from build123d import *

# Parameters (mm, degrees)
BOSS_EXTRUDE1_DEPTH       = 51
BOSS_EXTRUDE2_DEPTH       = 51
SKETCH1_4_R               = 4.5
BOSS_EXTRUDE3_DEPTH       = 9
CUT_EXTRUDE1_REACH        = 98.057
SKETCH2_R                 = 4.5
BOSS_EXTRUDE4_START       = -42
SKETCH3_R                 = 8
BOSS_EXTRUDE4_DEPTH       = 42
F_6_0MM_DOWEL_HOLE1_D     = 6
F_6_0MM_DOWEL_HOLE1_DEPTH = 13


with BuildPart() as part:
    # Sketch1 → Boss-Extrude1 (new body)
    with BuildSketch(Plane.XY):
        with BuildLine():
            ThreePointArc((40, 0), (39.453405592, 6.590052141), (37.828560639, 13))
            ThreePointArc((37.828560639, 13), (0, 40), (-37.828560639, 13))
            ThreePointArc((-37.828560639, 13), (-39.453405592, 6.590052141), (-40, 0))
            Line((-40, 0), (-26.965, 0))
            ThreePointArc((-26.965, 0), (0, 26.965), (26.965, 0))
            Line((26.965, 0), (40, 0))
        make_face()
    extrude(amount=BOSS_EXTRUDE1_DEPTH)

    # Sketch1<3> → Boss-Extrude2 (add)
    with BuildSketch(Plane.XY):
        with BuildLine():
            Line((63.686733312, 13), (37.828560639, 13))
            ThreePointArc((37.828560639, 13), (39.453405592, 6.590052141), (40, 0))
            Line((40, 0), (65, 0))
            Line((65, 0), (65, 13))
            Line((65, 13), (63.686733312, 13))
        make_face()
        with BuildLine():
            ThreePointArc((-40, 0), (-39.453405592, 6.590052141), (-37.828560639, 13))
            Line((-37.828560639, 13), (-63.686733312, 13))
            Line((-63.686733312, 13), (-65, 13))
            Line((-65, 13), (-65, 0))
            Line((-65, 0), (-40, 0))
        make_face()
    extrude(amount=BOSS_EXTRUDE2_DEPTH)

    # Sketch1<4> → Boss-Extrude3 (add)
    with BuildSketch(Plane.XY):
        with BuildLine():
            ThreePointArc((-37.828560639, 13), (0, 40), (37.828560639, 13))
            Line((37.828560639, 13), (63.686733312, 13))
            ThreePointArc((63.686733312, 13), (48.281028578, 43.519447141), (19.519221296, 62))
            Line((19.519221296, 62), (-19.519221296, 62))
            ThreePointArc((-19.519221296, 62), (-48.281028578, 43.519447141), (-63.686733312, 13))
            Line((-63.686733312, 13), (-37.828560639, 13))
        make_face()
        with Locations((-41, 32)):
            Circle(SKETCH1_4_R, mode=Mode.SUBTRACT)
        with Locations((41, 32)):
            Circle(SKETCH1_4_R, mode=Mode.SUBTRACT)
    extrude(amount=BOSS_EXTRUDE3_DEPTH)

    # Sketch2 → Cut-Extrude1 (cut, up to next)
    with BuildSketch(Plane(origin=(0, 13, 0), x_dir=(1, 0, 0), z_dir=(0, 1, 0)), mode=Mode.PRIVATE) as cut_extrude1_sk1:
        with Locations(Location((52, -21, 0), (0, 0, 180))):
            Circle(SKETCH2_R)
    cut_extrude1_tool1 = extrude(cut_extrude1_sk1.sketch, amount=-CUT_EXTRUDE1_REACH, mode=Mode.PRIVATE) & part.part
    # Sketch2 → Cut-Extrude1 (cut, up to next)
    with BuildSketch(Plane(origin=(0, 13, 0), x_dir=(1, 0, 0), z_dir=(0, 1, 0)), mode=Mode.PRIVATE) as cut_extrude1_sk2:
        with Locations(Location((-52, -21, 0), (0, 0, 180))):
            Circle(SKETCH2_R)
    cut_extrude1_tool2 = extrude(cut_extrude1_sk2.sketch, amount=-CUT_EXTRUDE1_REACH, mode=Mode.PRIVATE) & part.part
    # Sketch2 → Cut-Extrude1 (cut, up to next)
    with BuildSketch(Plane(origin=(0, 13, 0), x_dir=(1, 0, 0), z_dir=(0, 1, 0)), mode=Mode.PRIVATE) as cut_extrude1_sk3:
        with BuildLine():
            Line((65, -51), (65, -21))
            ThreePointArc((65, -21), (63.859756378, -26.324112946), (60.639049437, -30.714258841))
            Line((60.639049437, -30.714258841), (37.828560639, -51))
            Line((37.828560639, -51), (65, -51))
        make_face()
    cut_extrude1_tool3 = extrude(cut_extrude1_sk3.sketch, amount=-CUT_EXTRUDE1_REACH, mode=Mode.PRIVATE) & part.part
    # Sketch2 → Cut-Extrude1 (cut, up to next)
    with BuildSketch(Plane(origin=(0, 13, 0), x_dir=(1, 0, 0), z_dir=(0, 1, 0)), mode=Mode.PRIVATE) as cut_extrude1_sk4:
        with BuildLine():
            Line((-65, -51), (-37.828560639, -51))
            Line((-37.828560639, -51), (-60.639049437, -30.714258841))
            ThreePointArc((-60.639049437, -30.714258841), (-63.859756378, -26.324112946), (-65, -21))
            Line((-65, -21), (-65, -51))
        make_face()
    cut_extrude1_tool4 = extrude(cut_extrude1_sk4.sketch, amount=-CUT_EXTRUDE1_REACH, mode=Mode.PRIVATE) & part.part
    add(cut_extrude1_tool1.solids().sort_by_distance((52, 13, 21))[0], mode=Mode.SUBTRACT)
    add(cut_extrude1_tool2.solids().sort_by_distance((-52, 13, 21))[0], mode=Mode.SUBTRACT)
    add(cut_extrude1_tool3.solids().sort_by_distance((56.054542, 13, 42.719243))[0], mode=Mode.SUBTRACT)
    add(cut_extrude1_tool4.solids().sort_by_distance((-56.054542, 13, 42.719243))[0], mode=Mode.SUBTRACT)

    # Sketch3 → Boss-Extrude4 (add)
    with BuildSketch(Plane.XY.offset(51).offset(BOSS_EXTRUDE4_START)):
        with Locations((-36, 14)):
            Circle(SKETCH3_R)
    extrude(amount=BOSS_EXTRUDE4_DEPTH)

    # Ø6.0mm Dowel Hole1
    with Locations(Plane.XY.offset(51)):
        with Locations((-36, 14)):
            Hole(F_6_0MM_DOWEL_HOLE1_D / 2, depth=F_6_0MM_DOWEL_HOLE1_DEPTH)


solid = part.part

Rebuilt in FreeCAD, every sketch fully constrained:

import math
import FreeCAD as App
import Part
import Sketcher
from FreeCAD import Vector

doc = App.newDocument("Part")
params = doc.addObject("Spreadsheet::Sheet", "Params")
for row, (alias, value) in enumerate([
    ("sketch1_radius", "40 mm"),
    ("pad1_length", "51 mm"),
    ("sketch2_radius", "40 mm"),
    ("sketch2_width", "25 mm"),
    ("sketch2_height", "13 mm"),
    ("pad2_length", "51 mm"),
    ("sketch3_diameter", "9 mm"),
    ("sketch3_radius", "40 mm"),
    ("sketch3_radius2", "65 mm"),
    ("pad3_length", "9 mm"),
    ("sketch4_diameter", "9 mm"),
    ("sketch5_diameter", "9 mm"),
    ("sketch6_radius", "13 mm"),
    ("sketch6_height", "30 mm"),
    ("sketch7_radius", "13 mm"),
    ("sketch7_height", "30 mm"),
    ("sketch8_diameter", "16 mm"),
    ("pad4_length", "42 mm"),
    ("sketch9_diameter", "6 mm"),
    ("hole_diameter", "6 mm"),
    ("hole_depth", "13 mm"),
], start=1):
    params.set(f"A{row}", alias)
    params.set(f"B{row}", "=" + value)
    params.setAlias(f"B{row}", alias)

body = doc.addObject("PartDesign::Body", "Body")

# Sketch on XY plane
sketch1 = body.newObject("Sketcher::SketchObject", "Sketch")
sketch1.AttachmentSupport = (doc.getObject("XY_Plane"), [""])
sketch1.MapMode = "FlatFace"
sketch1.addGeometry([
    Part.ArcOfCircle(Part.Circle(Vector(0, 0, 0), Vector(0, 0, 1), 40), math.radians(0), math.radians(18.97)),  # 0
    Part.ArcOfCircle(Part.Circle(Vector(0, 0, 0), Vector(0, 0, 1), 40), math.radians(19), math.radians(161)),  # 1
    Part.ArcOfCircle(Part.Circle(Vector(0, 0, 0), Vector(0, 0, 1), 40), math.radians(161.03), math.radians(180)),  # 2
    Part.LineSegment(Vector(-40, 0, 0), Vector(-27, 0, 0)),  # 3
    Part.ArcOfCircle(Part.Circle(Vector(0, 0, 0), Vector(0, 0, 1), 27), math.radians(0), math.radians(180)),  # 4
    Part.LineSegment(Vector(27, 0, 0), Vector(40, 0, 0)),  # 5
], False)
sketch1.addConstraint([
    Sketcher.Constraint("Tangent", 0, 2, 1, 1),
    Sketcher.Constraint("Tangent", 1, 2, 2, 1),
    Sketcher.Constraint("Coincident", 2, 2, 3, 1),
    Sketcher.Constraint("Coincident", 3, 2, 4, 2),
    Sketcher.Constraint("Coincident", 4, 1, 5, 1),
    Sketcher.Constraint("Coincident", 5, 2, 0, 1),
    Sketcher.Constraint("Horizontal", 3),
    Sketcher.Constraint("Horizontal", 5),
    Sketcher.Constraint("Coincident", 0, 3, -1, 1),
    Sketcher.Constraint("Coincident", 2, 3, -1, 1),
    Sketcher.Constraint("Coincident", 4, 3, -1, 1),
    Sketcher.Constraint("PointOnObject", 2, 2, -1),
    Sketcher.Constraint("PointOnObject", 4, 1, -1),
    Sketcher.Constraint("Horizontal", 0, 2, 1, 2),
    Sketcher.Constraint("Radius", 0, 40.0),
    Sketcher.Constraint("DistanceY", -1, 1, 0, 2, 13.0),
    Sketcher.Constraint("Radius", 4, 26.965),
])
sketch1.setExpression("Constraints[14]", "Params.sketch1_radius")
pad1 = body.newObject("PartDesign::Pad", "Pad")
pad1.Profile = sketch1
pad1.setExpression("Length", "Params.pad1_length")

# Sketch on XY plane
sketch2 = body.newObject("Sketcher::SketchObject", "Sketch001")
sketch2.AttachmentSupport = (doc.getObject("XY_Plane"), [""])
sketch2.MapMode = "FlatFace"
sketch2.addGeometry([
    Part.ArcOfCircle(Part.Circle(Vector(0, 0, 0), Vector(0, 0, 1), 40), math.radians(0), math.radians(18.97)),  # 0
    Part.LineSegment(Vector(40, 0, 0), Vector(65, 0, 0)),  # 1
    Part.LineSegment(Vector(65, 0, 0), Vector(65, 13, 0)),  # 2
    Part.LineSegment(Vector(65, 13, 0), Vector(38, 13, 0)),  # 3
    Part.ArcOfCircle(Part.Circle(Vector(0, 0, 0), Vector(0, 0, 1), 40), math.radians(161.03), math.radians(180)),  # 4
    Part.LineSegment(Vector(-38, 13, 0), Vector(-65, 13, 0)),  # 5
    Part.LineSegment(Vector(-65, 13, 0), Vector(-65, 0, 0)),  # 6
    Part.LineSegment(Vector(-65, 0, 0), Vector(-40, 0, 0)),  # 7
], False)
sketch2.addConstraint([
    Sketcher.Constraint("Coincident", 0, 1, 1, 1),
    Sketcher.Constraint("Coincident", 1, 2, 2, 1),
    Sketcher.Constraint("Coincident", 2, 2, 3, 1),
    Sketcher.Constraint("Coincident", 3, 2, 0, 2),
    Sketcher.Constraint("Coincident", 4, 1, 5, 1),
    Sketcher.Constraint("Coincident", 5, 2, 6, 1),
    Sketcher.Constraint("Coincident", 6, 2, 7, 1),
    Sketcher.Constraint("Coincident", 7, 2, 4, 2),
    Sketcher.Constraint("Horizontal", 1),
    Sketcher.Constraint("Vertical", 2),
    Sketcher.Constraint("Horizontal", 3),
    Sketcher.Constraint("Horizontal", 5),
    Sketcher.Constraint("Vertical", 6),
    Sketcher.Constraint("Horizontal", 7),
    Sketcher.Constraint("Coincident", 0, 3, -1, 1),
    Sketcher.Constraint("Coincident", 4, 3, -1, 1),
    Sketcher.Constraint("Equal", 0, 4),
    Sketcher.Constraint("Symmetric", 1, 2, 6, 2, -1, 1),
    Sketcher.Constraint("PointOnObject", 0, 1, -1),
    Sketcher.Constraint("Horizontal", 3, 2, 4, 1),
    Sketcher.Constraint("Radius", 0, 40.0),
    Sketcher.Constraint("DistanceX", 1, 1, 1, 2, 25.0),
    Sketcher.Constraint("DistanceY", 2, 1, 2, 2, 13.0),
])
sketch2.setExpression("Constraints[20]", "Params.sketch2_radius")
sketch2.setExpression("Constraints[21]", "Params.sketch2_width")
sketch2.setExpression("Constraints[22]", "Params.sketch2_height")
pad2 = body.newObject("PartDesign::Pad", "Pad001")
pad2.Profile = sketch2
pad2.setExpression("Length", "Params.pad2_length")

# Sketch on XY plane
sketch3 = body.newObject("Sketcher::SketchObject", "Sketch002")
sketch3.AttachmentSupport = (doc.getObject("XY_Plane"), [""])
sketch3.MapMode = "FlatFace"
sketch3.addGeometry([
    Part.ArcOfCircle(Part.Circle(Vector(0, 0, 0), Vector(0, 0, 1), 40), math.radians(19), math.radians(161)),  # 0
    Part.LineSegment(Vector(37.8, 13, 0), Vector(63.7, 13, 0)),  # 1
    Part.ArcOfCircle(Part.Circle(Vector(0, 0, 0), Vector(0, 0, 1), 65), math.radians(12), math.radians(73)),  # 2
    Part.LineSegment(Vector(19.5, 62, 0), Vector(-19.5, 62, 0)),  # 3
    Part.ArcOfCircle(Part.Circle(Vector(0, 0, 0), Vector(0, 0, 1), 65), math.radians(107), math.radians(168)),  # 4
    Part.LineSegment(Vector(-63.7, 13, 0), Vector(-37.8, 13, 0)),  # 5
    Part.Circle(Vector(-41, 32, 0), Vector(0, 0, 1), 4.5),  # 6
    Part.Circle(Vector(41, 32, 0), Vector(0, 0, 1), 4.5),  # 7
], False)
sketch3.addConstraint([
    Sketcher.Constraint("Coincident", 0, 1, 1, 1),
    Sketcher.Constraint("Coincident", 1, 2, 2, 1),
    Sketcher.Constraint("Coincident", 2, 2, 3, 1),
    Sketcher.Constraint("Coincident", 3, 2, 4, 1),
    Sketcher.Constraint("Coincident", 4, 2, 5, 1),
    Sketcher.Constraint("Coincident", 5, 2, 0, 2),
    Sketcher.Constraint("Horizontal", 1),
    Sketcher.Constraint("Horizontal", 3),
    Sketcher.Constraint("Horizontal", 5),
    Sketcher.Constraint("Coincident", 0, 3, -1, 1),
    Sketcher.Constraint("Coincident", 2, 3, -1, 1),
    Sketcher.Constraint("Coincident", 4, 3, -1, 1),
    Sketcher.Constraint("Equal", 2, 4),
    Sketcher.Constraint("Equal", 6, 7),
    Sketcher.Constraint("Symmetric", 6, 3, 7, 3, -2),
    Sketcher.Constraint("Horizontal", 1, 2, 4, 2),
    Sketcher.Constraint("Diameter", 6, 9.0),
    Sketcher.Constraint("Radius", 0, 40.0),
    Sketcher.Constraint("Radius", 2, 65.0),
    Sketcher.Constraint("DistanceX", 6, 3, -1, 1, 41.0),
    Sketcher.Constraint("DistanceY", -1, 1, 6, 3, 32.0),
    Sketcher.Constraint("DistanceY", -1, 1, 0, 1, 13.0),
    Sketcher.Constraint("DistanceY", -1, 1, 2, 2, 62.0),
])
sketch3.setExpression("Constraints[16]", "Params.sketch3_diameter")
sketch3.setExpression("Constraints[17]", "Params.sketch3_radius")
sketch3.setExpression("Constraints[18]", "Params.sketch3_radius2")
pad3 = body.newObject("PartDesign::Pad", "Pad002")
pad3.Profile = sketch3
pad3.setExpression("Length", "Params.pad3_length")

# Sketch on XZ plane
sketch4 = body.newObject("Sketcher::SketchObject", "Sketch003")
sketch4.AttachmentSupport = (doc.getObject("XZ_Plane"), [""])
sketch4.MapMode = "FlatFace"
sketch4.AttachmentOffset = App.Placement(Vector(0, 0, -13), App.Rotation())
sketch4.addGeometry(Part.Circle(Vector(52, 21, 0), Vector(0, 0, 1), 4.5), False)
sketch4.addConstraint([
    Sketcher.Constraint("Diameter", 0, 9.0),
    Sketcher.Constraint("DistanceX", -1, 1, 0, 3, 52.0),
    Sketcher.Constraint("DistanceY", -1, 1, 0, 3, 21.0),
])
sketch4.setExpression("Constraints[0]", "Params.sketch4_diameter")
pocket1 = body.newObject("PartDesign::Pocket", "Pocket")
pocket1.Profile = sketch4
pocket1.Type = "UpToFirst"
pocket1.Reversed = True

# Sketch on XZ plane
sketch5 = body.newObject("Sketcher::SketchObject", "Sketch004")
sketch5.AttachmentSupport = (doc.getObject("XZ_Plane"), [""])
sketch5.MapMode = "FlatFace"
sketch5.AttachmentOffset = App.Placement(Vector(0, 0, -13), App.Rotation())
sketch5.addGeometry(Part.Circle(Vector(-52, 21, 0), Vector(0, 0, 1), 4.5), False)
sketch5.addConstraint([
    Sketcher.Constraint("Diameter", 0, 9.0),
    Sketcher.Constraint("DistanceX", 0, 3, -1, 1, 52.0),
    Sketcher.Constraint("DistanceY", -1, 1, 0, 3, 21.0),
])
sketch5.setExpression("Constraints[0]", "Params.sketch5_diameter")
pocket2 = body.newObject("PartDesign::Pocket", "Pocket001")
pocket2.Profile = sketch5
pocket2.Type = "UpToFirst"
pocket2.Reversed = True

# Sketch on XZ plane
sketch6 = body.newObject("Sketcher::SketchObject", "Sketch005")
sketch6.AttachmentSupport = (doc.getObject("XZ_Plane"), [""])
sketch6.MapMode = "FlatFace"
sketch6.AttachmentOffset = App.Placement(Vector(0, 0, -13), App.Rotation())
sketch6.addGeometry([
    Part.LineSegment(Vector(65, 51, 0), Vector(65, 21, 0)),
    Part.ArcOfCircle(Part.Circle(Vector(52, 21, 0), Vector(0, 0, 1), 13), math.radians(0), math.radians(48)),
    Part.LineSegment(Vector(61, 31, 0), Vector(38, 51, 0)),
    Part.LineSegment(Vector(38, 51, 0), Vector(65, 51, 0)),
], False)
sketch6.addConstraint([
    Sketcher.Constraint("Tangent", 0, 2, 1, 1),
    Sketcher.Constraint("Tangent", 1, 2, 2, 1),
    Sketcher.Constraint("Coincident", 2, 2, 3, 1),
    Sketcher.Constraint("Coincident", 3, 2, 0, 1),
    Sketcher.Constraint("Vertical", 0),
    Sketcher.Constraint("Horizontal", 3),
    Sketcher.Constraint("Radius", 1, 13.0),
    Sketcher.Constraint("DistanceY", 0, 2, 0, 1, 30.0),
    Sketcher.Constraint("DistanceX", -1, 1, 1, 3, 52.0),
    Sketcher.Constraint("DistanceY", -1, 1, 1, 3, 21.0),
    Sketcher.Constraint("DistanceX", 3, 1, 3, 2, 27.171439),
])
sketch6.setExpression("Constraints[6]", "Params.sketch6_radius")
sketch6.setExpression("Constraints[7]", "Params.sketch6_height")
pocket3 = body.newObject("PartDesign::Pocket", "Pocket002")
pocket3.Profile = sketch6
pocket3.Type = "UpToFirst"
pocket3.Reversed = True

# Sketch on XZ plane
sketch7 = body.newObject("Sketcher::SketchObject", "Sketch006")
sketch7.AttachmentSupport = (doc.getObject("XZ_Plane"), [""])
sketch7.MapMode = "FlatFace"
sketch7.AttachmentOffset = App.Placement(Vector(0, 0, -13), App.Rotation())
sketch7.addGeometry([
    Part.LineSegment(Vector(-65, 51, 0), Vector(-38, 51, 0)),
    Part.LineSegment(Vector(-38, 51, 0), Vector(-61, 31, 0)),
    Part.ArcOfCircle(Part.Circle(Vector(-52, 21, 0), Vector(0, 0, 1), 13), math.radians(132), math.radians(180)),
    Part.LineSegment(Vector(-65, 21, 0), Vector(-65, 51, 0)),
], False)
sketch7.addConstraint([
    Sketcher.Constraint("Coincident", 0, 2, 1, 1),
    Sketcher.Constraint("Tangent", 1, 2, 2, 1),
    Sketcher.Constraint("Tangent", 2, 2, 3, 1),
    Sketcher.Constraint("Coincident", 3, 2, 0, 1),
    Sketcher.Constraint("Horizontal", 0),
    Sketcher.Constraint("Vertical", 3),
    Sketcher.Constraint("Radius", 2, 13.0),
    Sketcher.Constraint("DistanceY", 3, 1, 3, 2, 30.0),
    Sketcher.Constraint("DistanceX", 2, 3, -1, 1, 52.0),
    Sketcher.Constraint("DistanceY", -1, 1, 2, 3, 21.0),
    Sketcher.Constraint("DistanceX", 0, 1, 0, 2, 27.171439),
])
sketch7.setExpression("Constraints[6]", "Params.sketch7_radius")
sketch7.setExpression("Constraints[7]", "Params.sketch7_height")
pocket4 = body.newObject("PartDesign::Pocket", "Pocket003")
pocket4.Profile = sketch7
pocket4.Type = "UpToFirst"
pocket4.Reversed = True

# Sketch on XY plane
sketch8 = body.newObject("Sketcher::SketchObject", "Sketch007")
sketch8.AttachmentSupport = (doc.getObject("XY_Plane"), [""])
sketch8.MapMode = "FlatFace"
sketch8.AttachmentOffset = App.Placement(Vector(0, 0, 9), App.Rotation())
sketch8.addGeometry(Part.Circle(Vector(-36, 14, 0), Vector(0, 0, 1), 8), False)
sketch8.addConstraint([
    Sketcher.Constraint("Diameter", 0, 16.0),
    Sketcher.Constraint("DistanceX", 0, 3, -1, 1, 36.0),
    Sketcher.Constraint("DistanceY", -1, 1, 0, 3, 14.0),
])
sketch8.setExpression("Constraints[0]", "Params.sketch8_diameter")
pad4 = body.newObject("PartDesign::Pad", "Pad003")
pad4.Profile = sketch8
pad4.setExpression("Length", "Params.pad4_length")

# Sketch on XY plane
sketch9 = body.newObject("Sketcher::SketchObject", "Sketch008")
sketch9.AttachmentSupport = (doc.getObject("XY_Plane"), [""])
sketch9.MapMode = "FlatFace"
sketch9.AttachmentOffset = App.Placement(Vector(0, 0, 51), App.Rotation())
sketch9.addGeometry(Part.Circle(Vector(-36, 14, 0), Vector(0, 0, 1), 3), False)
sketch9.addConstraint([
    Sketcher.Constraint("Diameter", 0, 6.0),
    Sketcher.Constraint("DistanceX", 0, 3, -1, 1, 36.0),
    Sketcher.Constraint("DistanceY", -1, 1, 0, 3, 14.0),
])
sketch9.setExpression("Constraints[0]", "Params.sketch9_diameter")
doc.recompute()
hole = body.newObject("PartDesign::Hole", "Hole")
hole.Profile = sketch9
hole.ThreadType = "None"
hole.setExpression("Diameter", "Params.hole_diameter")
hole.DepthType = "Dimension"
hole.setExpression("Depth", "Params.hole_depth")
hole.DrillPoint = "Flat"

doc.recompute()
